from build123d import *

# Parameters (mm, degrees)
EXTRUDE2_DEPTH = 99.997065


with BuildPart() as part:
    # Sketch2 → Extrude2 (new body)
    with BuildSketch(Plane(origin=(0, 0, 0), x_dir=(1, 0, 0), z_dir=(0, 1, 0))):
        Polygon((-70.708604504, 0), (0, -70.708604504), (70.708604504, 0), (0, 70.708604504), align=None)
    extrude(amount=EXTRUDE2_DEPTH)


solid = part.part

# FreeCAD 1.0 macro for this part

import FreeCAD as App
import Part
import Sketcher

V = App.Vector
Q = App.Units.Quantity


def add_polygon(sketch, points):
    """Adds a closed chain of lines whose ends are joined by coincident constraints."""
    first, n = sketch.GeometryCount, len(points)
    for a, b in zip(points, points[1:] + points[:1]):
        sketch.addGeometry(Part.LineSegment(App.Vector(*a, 0), App.Vector(*b, 0)), False)
    for i in range(n):
        sketch.addConstraint(Sketcher.Constraint("Coincident", first + i, 2, first + (i + 1) % n, 1))

doc = App.newDocument("Part")
params = doc.addObject("Spreadsheet::Sheet", "Params")
for row, (alias, value) in enumerate([
    ("pad1_length", "99.997065 mm"),
], start=1):
    params.set(f"A{row}", alias)
    params.set(f"B{row}", "=" + value)
    params.setAlias(f"B{row}", alias)

body = doc.addObject("PartDesign::Body", "Body")

sketch1 = body.newObject("Sketcher::SketchObject", "Sketch")
sketch1.AttachmentSupport = (doc.getObject("XZ_Plane"), [""])
sketch1.MapMode = "FlatFace"
add_polygon(sketch1, [(-70.708605, 0), (0, 70.708605), (70.708605, 0), (0, -70.708605)])
sketch1.addConstraint(Sketcher.Constraint("Symmetric", 0, 2, 2, 2, -1, 1))
sketch1.addConstraint(Sketcher.Constraint("Symmetric", 1, 2, 3, 2, -1, 1))
sketch1.addConstraint(Sketcher.Constraint("PointOnObject", 0, 2, -2))
sketch1.addConstraint(Sketcher.Constraint("PointOnObject", 1, 2, -1))
sketch1.addConstraint(Sketcher.Constraint("Perpendicular", 0, 1))
sketch1.addConstraint(Sketcher.Constraint("DistanceY", 2, 2, 0, 2, Q("141.417209 mm")))
pad1 = body.newObject("PartDesign::Pad", "Pad")
pad1.Profile = sketch1
pad1.setExpression("Length", "Params.pad1_length")
pad1.Reversed = True

doc.recompute()
